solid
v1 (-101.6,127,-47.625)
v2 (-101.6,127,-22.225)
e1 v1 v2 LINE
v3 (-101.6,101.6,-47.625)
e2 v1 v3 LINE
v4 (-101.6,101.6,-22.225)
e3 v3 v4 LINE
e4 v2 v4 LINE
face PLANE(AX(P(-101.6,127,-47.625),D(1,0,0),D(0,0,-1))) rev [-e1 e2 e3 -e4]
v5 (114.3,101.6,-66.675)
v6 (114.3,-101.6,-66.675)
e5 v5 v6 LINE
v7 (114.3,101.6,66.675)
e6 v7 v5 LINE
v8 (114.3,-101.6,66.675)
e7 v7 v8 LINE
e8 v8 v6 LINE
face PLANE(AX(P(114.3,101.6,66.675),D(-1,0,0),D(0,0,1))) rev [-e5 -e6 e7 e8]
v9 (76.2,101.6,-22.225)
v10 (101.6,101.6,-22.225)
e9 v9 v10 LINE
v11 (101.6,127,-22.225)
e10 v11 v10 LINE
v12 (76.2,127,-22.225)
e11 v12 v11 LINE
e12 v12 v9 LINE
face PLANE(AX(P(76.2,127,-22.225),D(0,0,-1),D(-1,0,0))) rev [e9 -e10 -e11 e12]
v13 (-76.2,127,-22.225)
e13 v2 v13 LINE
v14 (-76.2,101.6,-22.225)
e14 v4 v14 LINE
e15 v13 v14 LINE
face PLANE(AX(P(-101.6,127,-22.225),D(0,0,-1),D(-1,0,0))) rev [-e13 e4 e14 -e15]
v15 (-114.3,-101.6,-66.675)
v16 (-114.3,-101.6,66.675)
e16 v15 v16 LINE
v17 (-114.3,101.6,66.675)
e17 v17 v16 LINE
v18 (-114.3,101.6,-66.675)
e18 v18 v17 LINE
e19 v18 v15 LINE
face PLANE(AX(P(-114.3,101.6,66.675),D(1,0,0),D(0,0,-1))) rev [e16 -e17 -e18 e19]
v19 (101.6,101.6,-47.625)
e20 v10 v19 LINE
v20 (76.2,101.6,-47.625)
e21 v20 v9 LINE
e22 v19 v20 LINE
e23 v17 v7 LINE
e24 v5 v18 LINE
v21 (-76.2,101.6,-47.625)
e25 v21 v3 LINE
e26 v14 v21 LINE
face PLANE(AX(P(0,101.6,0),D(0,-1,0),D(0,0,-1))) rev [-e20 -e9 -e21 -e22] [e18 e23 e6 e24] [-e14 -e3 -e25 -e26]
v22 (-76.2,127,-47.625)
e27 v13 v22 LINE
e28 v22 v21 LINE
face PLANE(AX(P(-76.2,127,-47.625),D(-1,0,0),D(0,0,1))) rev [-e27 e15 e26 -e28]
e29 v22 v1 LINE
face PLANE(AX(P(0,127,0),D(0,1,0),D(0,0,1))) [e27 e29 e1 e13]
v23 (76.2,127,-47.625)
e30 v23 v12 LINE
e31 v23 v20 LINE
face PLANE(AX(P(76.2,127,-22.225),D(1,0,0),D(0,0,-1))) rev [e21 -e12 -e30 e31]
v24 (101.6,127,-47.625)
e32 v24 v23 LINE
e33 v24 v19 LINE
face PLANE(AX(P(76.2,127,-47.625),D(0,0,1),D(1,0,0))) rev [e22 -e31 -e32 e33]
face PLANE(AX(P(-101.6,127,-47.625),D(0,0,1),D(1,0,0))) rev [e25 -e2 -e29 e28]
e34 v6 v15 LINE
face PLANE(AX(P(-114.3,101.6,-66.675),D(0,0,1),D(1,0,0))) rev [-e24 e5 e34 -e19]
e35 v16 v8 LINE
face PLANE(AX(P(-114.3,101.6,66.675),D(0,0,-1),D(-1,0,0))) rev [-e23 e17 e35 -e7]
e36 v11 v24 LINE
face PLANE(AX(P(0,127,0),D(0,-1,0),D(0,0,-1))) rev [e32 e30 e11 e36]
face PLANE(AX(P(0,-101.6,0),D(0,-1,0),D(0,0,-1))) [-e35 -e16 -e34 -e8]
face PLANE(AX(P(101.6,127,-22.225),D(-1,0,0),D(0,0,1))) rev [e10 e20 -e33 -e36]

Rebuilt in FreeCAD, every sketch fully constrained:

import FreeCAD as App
import Part
import Sketcher

V = App.Vector
Q = App.Units.Quantity


def add_polygon(sketch, points):
    """Adds a closed chain of lines whose ends are joined by coincident constraints."""
    first, n = sketch.GeometryCount, len(points)
    for a, b in zip(points, points[1:] + points[:1]):
        sketch.addGeometry(Part.LineSegment(App.Vector(*a, 0), App.Vector(*b, 0)), False)
    for i in range(n):
        sketch.addConstraint(Sketcher.Constraint("Coincident", first + i, 2, first + (i + 1) % n, 1))

doc = App.newDocument("Part")
params = doc.addObject("Spreadsheet::Sheet", "Params")
for row, (alias, value) in enumerate([
    ("sketch1_width", "9 in"),
    ("sketch1_height", "5.25 in"),
    ("pad1_length", "8 in"),
    ("sketch2_width", "1 in"),
    ("pad2_length", "1 in"),
], start=1):
    params.set(f"A{row}", alias)
    params.set(f"B{row}", "=" + value)
    params.setAlias(f"B{row}", alias)

body = doc.addObject("PartDesign::Body", "Body")

# Sketch on XZ plane
sketch1 = body.newObject("Sketcher::SketchObject", "Sketch")
sketch1.AttachmentSupport = (doc.getObject("XZ_Plane"), [""])
sketch1.MapMode = "FlatFace"
add_polygon(sketch1, [(-114.3, -66.675), (-114.3, 66.675), (114.3, 66.675), (114.3, -66.675)])  # lines 0-3
sketch1.addConstraint([
    Sketcher.Constraint("Vertical", 0),
    Sketcher.Constraint("Horizontal", 1),
    Sketcher.Constraint("Vertical", 2),
    Sketcher.Constraint("Horizontal", 3),
    Sketcher.Constraint("Symmetric", 0, 2, 2, 2, -1, 1),
    Sketcher.Constraint("DistanceX", 1, 1, 1, 2, Q("9 in")),
    Sketcher.Constraint("DistanceY", 0, 1, 0, 2, Q("5.25 in")),
])
sketch1.setExpression("Constraints[9]", "Params.sketch1_width")
sketch1.setExpression("Constraints[10]", "Params.sketch1_height")
pad1 = body.newObject("PartDesign::Pad", "Pad")
pad1.Profile = sketch1
pad1.setExpression("Length", "Params.pad1_length")
pad1.Midplane = True

# Sketch on XZ plane
sketch2 = body.newObject("Sketcher::SketchObject", "Sketch001")
sketch2.AttachmentSupport = (doc.getObject("XZ_Plane"), [""])
sketch2.MapMode = "FlatFace"
sketch2.AttachmentOffset = App.Placement(V(0, 0, -4 * 25.4), App.Rotation())
add_polygon(sketch2, [(-101.6, -47.625), (-101.6, -22.225), (-76.2, -22.225), (-76.2, -47.625)])  # lines 0-3
add_polygon(sketch2, [(76.2, -47.625), (76.2, -22.225), (101.6, -22.225), (101.6, -47.625)])  # lines 4-7
sketch2.addConstraint([
    Sketcher.Constraint("Vertical", 0),
    Sketcher.Constraint("Horizontal", 1),
    Sketcher.Constraint("Vertical", 2),
    Sketcher.Constraint("Horizontal", 3),
    Sketcher.Constraint("Vertical", 4),
    Sketcher.Constraint("Horizontal", 5),
    Sketcher.Constraint("Vertical", 6),
    Sketcher.Constraint("Horizontal", 7),
    Sketcher.Constraint("Symmetric", 1, 2, 4, 2, -2),
    Sketcher.Constraint("Symmetric", 3, 2, 6, 2, -2),
    Sketcher.Constraint("Equal", 7, 0),
    Sketcher.Constraint("DistanceX", 1, 1, 1, 2, Q("1 in")),
    Sketcher.Constraint("DistanceX", 0, 2, -1, 1, Q("4 in")),
    Sketcher.Constraint("DistanceY", 0, 2, -1, 1, Q("0.875 in")),
])
sketch2.setExpression("Constraints[19]", "Params.sketch2_width")
pad2 = body.newObject("PartDesign::Pad", "Pad001")
pad2.Profile = sketch2
pad2.setExpression("Length", "Params.pad2_length")
pad2.Reversed = True

doc.recompute()
